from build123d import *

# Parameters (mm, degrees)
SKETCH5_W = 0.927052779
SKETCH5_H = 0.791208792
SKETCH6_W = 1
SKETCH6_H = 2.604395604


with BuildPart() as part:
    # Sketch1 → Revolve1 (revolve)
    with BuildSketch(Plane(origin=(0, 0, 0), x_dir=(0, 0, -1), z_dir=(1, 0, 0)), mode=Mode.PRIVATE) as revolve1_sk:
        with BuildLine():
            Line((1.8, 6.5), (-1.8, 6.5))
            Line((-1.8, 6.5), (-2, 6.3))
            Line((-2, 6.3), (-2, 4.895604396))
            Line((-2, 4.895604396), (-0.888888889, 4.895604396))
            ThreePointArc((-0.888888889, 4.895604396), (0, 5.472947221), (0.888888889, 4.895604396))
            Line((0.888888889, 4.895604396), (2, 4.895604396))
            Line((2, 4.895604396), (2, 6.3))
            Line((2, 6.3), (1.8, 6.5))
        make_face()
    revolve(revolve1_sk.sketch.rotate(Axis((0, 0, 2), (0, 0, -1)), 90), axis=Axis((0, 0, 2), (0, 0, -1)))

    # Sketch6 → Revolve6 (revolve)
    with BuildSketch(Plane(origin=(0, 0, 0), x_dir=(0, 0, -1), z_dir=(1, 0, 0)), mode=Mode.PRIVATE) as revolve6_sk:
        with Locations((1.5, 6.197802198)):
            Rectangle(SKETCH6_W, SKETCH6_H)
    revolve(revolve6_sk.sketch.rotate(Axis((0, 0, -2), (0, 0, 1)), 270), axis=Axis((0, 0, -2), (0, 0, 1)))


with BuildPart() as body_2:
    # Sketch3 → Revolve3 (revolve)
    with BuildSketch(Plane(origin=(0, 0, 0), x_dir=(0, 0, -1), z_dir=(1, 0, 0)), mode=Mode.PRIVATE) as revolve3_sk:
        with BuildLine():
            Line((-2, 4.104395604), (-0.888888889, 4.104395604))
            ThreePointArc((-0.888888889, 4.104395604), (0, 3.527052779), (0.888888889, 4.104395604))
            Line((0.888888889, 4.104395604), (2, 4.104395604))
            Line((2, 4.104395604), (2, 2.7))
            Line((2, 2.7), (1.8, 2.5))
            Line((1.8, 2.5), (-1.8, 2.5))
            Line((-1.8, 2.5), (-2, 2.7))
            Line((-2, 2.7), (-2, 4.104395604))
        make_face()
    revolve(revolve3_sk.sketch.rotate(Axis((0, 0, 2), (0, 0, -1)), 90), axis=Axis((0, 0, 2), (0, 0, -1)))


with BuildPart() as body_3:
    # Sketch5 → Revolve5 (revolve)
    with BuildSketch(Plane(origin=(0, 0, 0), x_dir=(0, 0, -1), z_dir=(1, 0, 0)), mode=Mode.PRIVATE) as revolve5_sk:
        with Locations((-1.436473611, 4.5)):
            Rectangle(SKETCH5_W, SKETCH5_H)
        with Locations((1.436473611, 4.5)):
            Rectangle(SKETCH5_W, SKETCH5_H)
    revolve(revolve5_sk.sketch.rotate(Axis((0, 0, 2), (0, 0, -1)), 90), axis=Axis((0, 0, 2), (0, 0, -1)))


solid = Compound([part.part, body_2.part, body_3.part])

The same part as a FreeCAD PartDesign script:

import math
import FreeCAD as App
import Part
import Sketcher

V = App.Vector

doc = App.newDocument("Part")
body = doc.addObject("PartDesign::Body", "Body")

sketch1 = body.newObject("Sketcher::SketchObject", "Sketch")
sketch1.AttachmentSupport = (doc.getObject("YZ_Plane"), [""])
sketch1.MapMode = "FlatFace"
sketch1.addGeometry(Part.LineSegment(V(6.5, -1.8, 0), V(6.5, 1.8, 0)), False)
sketch1.addGeometry(Part.LineSegment(V(6.5, 1.8, 0), V(6.3, 2, 0)), False)
sketch1.addGeometry(Part.LineSegment(V(6.3, 2, 0), V(4.9, 2, 0)), False)
sketch1.addGeometry(Part.LineSegment(V(4.9, 2, 0), V(4.9, 0.89, 0)), False)
sketch1.addGeometry(Part.ArcOfCircle(Part.Circle(V(4.5, 0, 0), V(0, 0, 1), 0.97), math.radians(-66), math.radians(66)), False)
sketch1.addGeometry(Part.LineSegment(V(4.9, -0.89, 0), V(4.9, -2, 0)), False)
sketch1.addGeometry(Part.LineSegment(V(4.9, -2, 0), V(6.3, -2, 0)), False)
sketch1.addGeometry(Part.LineSegment(V(6.3, -2, 0), V(6.5, -1.8, 0)), False)
sketch1.addConstraint(Sketcher.Constraint("Coincident", 0, 2, 1, 1))
sketch1.addConstraint(Sketcher.Constraint("Coincident", 1, 2, 2, 1))
sketch1.addConstraint(Sketcher.Constraint("Coincident", 2, 2, 3, 1))
sketch1.addConstraint(Sketcher.Constraint("Coincident", 3, 2, 4, 2))
sketch1.addConstraint(Sketcher.Constraint("Coincident", 4, 1, 5, 1))
sketch1.addConstraint(Sketcher.Constraint("Coincident", 5, 2, 6, 1))
sketch1.addConstraint(Sketcher.Constraint("Coincident", 6, 2, 7, 1))
sketch1.addConstraint(Sketcher.Constraint("Coincident", 7, 2, 0, 1))
sketch1.addConstraint(Sketcher.Constraint("Vertical", 0))
sketch1.addConstraint(Sketcher.Constraint("Horizontal", 2))
sketch1.addConstraint(Sketcher.Constraint("Vertical", 3))
sketch1.addConstraint(Sketcher.Constraint("Vertical", 5))
sketch1.addConstraint(Sketcher.Constraint("Horizontal", 6))
sketch1.addConstraint(Sketcher.Constraint("Symmetric", 3, 2, 4, 1, -1))
sketch1.addConstraint(Sketcher.Constraint("Symmetric", 1, 2, 6, 2, -1))
sketch1.addConstraint(Sketcher.Constraint("Perpendicular", 1, 7))
sketch1.addConstraint(Sketcher.Constraint("Equal", 1, 7))
sketch1.addConstraint(Sketcher.Constraint("DistanceY", 0, 1, 0, 2, 3.6))
sketch1.addConstraint(Sketcher.Constraint("DistanceY", -1, 1, 1, 2, 2.0))
sketch1.addConstraint(Sketcher.Constraint("DistanceX", 4, 3, 0, 2, 2.0))
sketch1.addConstraint(Sketcher.Constraint("DistanceX", -1, 1, 4, 3, 4.5))
sketch1.addConstraint(Sketcher.Constraint("Radius", 4, 0.972947))
sketch1.addConstraint(Sketcher.Constraint("DistanceY", 3, 2, 3, 1, 1.111111))
revolution = body.newObject("PartDesign::Revolution", "Revolution")
revolution.Profile = sketch1
revolution.ReferenceAxis = (sketch1, ["V_Axis"])
revolution.Angle = 360

sketch2 = body.newObject("Sketcher::SketchObject", "Sketch001")
sketch2.AttachmentSupport = (doc.getObject("YZ_Plane"), [""])
sketch2.MapMode = "FlatFace"
sketch2.addGeometry(Part.LineSegment(V(7.5, -1, 0), V(4.9, -1, 0)), False)
sketch2.addGeometry(Part.LineSegment(V(4.9, -1, 0), V(4.9, -2, 0)), False)
sketch2.addGeometry(Part.LineSegment(V(4.9, -2, 0), V(7.5, -2, 0)), False)
sketch2.addGeometry(Part.LineSegment(V(7.5, -2, 0), V(7.5, -1, 0)), False)
sketch2.addConstraint(Sketcher.Constraint("Coincident", 0, 2, 1, 1))
sketch2.addConstraint(Sketcher.Constraint("Coincident", 1, 2, 2, 1))
sketch2.addConstraint(Sketcher.Constraint("Coincident", 2, 2, 3, 1))
sketch2.addConstraint(Sketcher.Constraint("Coincident", 3, 2, 0, 1))
sketch2.addConstraint(Sketcher.Constraint("Horizontal", 0))
sketch2.addConstraint(Sketcher.Constraint("Vertical", 1))
sketch2.addConstraint(Sketcher.Constraint("Horizontal", 2))
sketch2.addConstraint(Sketcher.Constraint("Vertical", 3))
sketch2.addConstraint(Sketcher.Constraint("DistanceY", 1, 2, 1, 1, 1.0))
sketch2.addConstraint(Sketcher.Constraint("DistanceY", 0, 2, -1, 1, 1.0))
sketch2.addConstraint(Sketcher.Constraint("DistanceX", -1, 1, 2, 2, 7.5))
sketch2.addConstraint(Sketcher.Constraint("DistanceX", 0, 2, 0, 1, 2.604396))
revolution2 = body.newObject("PartDesign::Revolution", "Revolution001")
revolution2.Profile = sketch2
revolution2.ReferenceAxis = (sketch2, ["V_Axis"])
revolution2.Angle = 360
body2 = doc.addObject("PartDesign::Body", "Body001")

sketch3 = body2.newObject("Sketcher::SketchObject", "Sketch002")
sketch3.AttachmentSupport = (doc.getObject("YZ_Plane001"), [""])
sketch3.MapMode = "FlatFace"
sketch3.addGeometry(Part.LineSegment(V(4.1, 0.89, 0), V(4.1, 2, 0)), False)
sketch3.addGeometry(Part.LineSegment(V(4.1, 2, 0), V(2.7, 2, 0)), False)
sketch3.addGeometry(Part.LineSegment(V(2.7, 2, 0), V(2.5, 1.8, 0)), False)
sketch3.addGeometry(Part.LineSegment(V(2.5, 1.8, 0), V(2.5, -1.8, 0)), False)
sketch3.addGeometry(Part.LineSegment(V(2.5, -1.8, 0), V(2.7, -2, 0)), False)
sketch3.addGeometry(Part.LineSegment(V(2.7, -2, 0), V(4.1, -2, 0)), False)
sketch3.addGeometry(Part.LineSegment(V(4.1, -2, 0), V(4.1, -0.89, 0)), False)
sketch3.addGeometry(Part.ArcOfCircle(Part.Circle(V(4.5, 0, 0), V(0, 0, 1), 0.97), math.radians(114), math.radians(246)), False)
sketch3.addConstraint(Sketcher.Constraint("Coincident", 0, 2, 1, 1))
sketch3.addConstraint(Sketcher.Constraint("Coincident", 1, 2, 2, 1))
sketch3.addConstraint(Sketcher.Constraint("Coincident", 2, 2, 3, 1))
sketch3.addConstraint(Sketcher.Constraint("Coincident", 3, 2, 4, 1))
sketch3.addConstraint(Sketcher.Constraint("Coincident", 4, 2, 5, 1))
sketch3.addConstraint(Sketcher.Constraint("Coincident", 5, 2, 6, 1))
sketch3.addConstraint(Sketcher.Constraint("Coincident", 6, 2, 7, 2))
sketch3.addConstraint(Sketcher.Constraint("Coincident", 7, 1, 0, 1))
sketch3.addConstraint(Sketcher.Constraint("Vertical", 0))
sketch3.addConstraint(Sketcher.Constraint("Horizontal", 1))
sketch3.addConstraint(Sketcher.Constraint("Vertical", 3))
sketch3.addConstraint(Sketcher.Constraint("Horizontal", 5))
sketch3.addConstraint(Sketcher.Constraint("Vertical", 6))
sketch3.addConstraint(Sketcher.Constraint("Symmetric", 1, 2, 4, 2, -1))
sketch3.addConstraint(Sketcher.Constraint("Symmetric", 6, 2, 7, 1, -1))
sketch3.addConstraint(Sketcher.Constraint("Perpendicular", 2, 4))
sketch3.addConstraint(Sketcher.Constraint("Equal", 2, 4))
sketch3.addConstraint(Sketcher.Constraint("DistanceY", 3, 2, 3, 1, 3.6))
sketch3.addConstraint(Sketcher.Constraint("DistanceY", -1, 1, 0, 2, 2.0))
sketch3.addConstraint(Sketcher.Constraint("DistanceX", 2, 2, 7, 3, 2.0))
sketch3.addConstraint(Sketcher.Constraint("DistanceX", -1, 1, 7, 3, 4.5))
sketch3.addConstraint(Sketcher.Constraint("Radius", 7, 0.972947))
sketch3.addConstraint(Sketcher.Constraint("DistanceY", 0, 1, 0, 2, 1.111111))
revolution3 = body2.newObject("PartDesign::Revolution", "Revolution002")
revolution3.Profile = sketch3
revolution3.ReferenceAxis = (sketch3, ["V_Axis"])
revolution3.Angle = 360
body3 = doc.addObject("PartDesign::Body", "Body002")
body3.AllowCompound = True

sketch4 = body3.newObject("Sketcher::SketchObject", "Sketch003")
sketch4.AttachmentSupport = (doc.getObject("YZ_Plane002"), [""])
sketch4.MapMode = "FlatFace"
sketch4.addGeometry(Part.LineSegment(V(4.9, 1.9, 0), V(4.1, 1.9, 0)), False)
sketch4.addGeometry(Part.LineSegment(V(4.1, 1.9, 0), V(4.1, 1, 0)), False)
sketch4.addGeometry(Part.LineSegment(V(4.1, 1, 0), V(4.9, 1, 0)), False)
sketch4.addGeometry(Part.LineSegment(V(4.9, 1, 0), V(4.9, 1.9, 0)), False)
sketch4.addGeometry(Part.LineSegment(V(4.9, -1, 0), V(4.1, -1, 0)), False)
sketch4.addGeometry(Part.LineSegment(V(4.1, -1, 0), V(4.1, -1.9, 0)), False)
sketch4.addGeometry(Part.LineSegment(V(4.1, -1.9, 0), V(4.9, -1.9, 0)), False)
sketch4.addGeometry(Part.LineSegment(V(4.9, -1.9, 0), V(4.9, -1, 0)), False)
sketch4.addConstraint(Sketcher.Constraint("Coincident", 0, 2, 1, 1))
sketch4.addConstraint(Sketcher.Constraint("Coincident", 1, 2, 2, 1))
sketch4.addConstraint(Sketcher.Constraint("Coincident", 2, 2, 3, 1))
sketch4.addConstraint(Sketcher.Constraint("Coincident", 3, 2, 0, 1))
sketch4.addConstraint(Sketcher.Constraint("Coincident", 4, 2, 5, 1))
sketch4.addConstraint(Sketcher.Constraint("Coincident", 5, 2, 6, 1))
sketch4.addConstraint(Sketcher.Constraint("Coincident", 6, 2, 7, 1))
sketch4.addConstraint(Sketcher.Constraint("Coincident", 7, 2, 4, 1))
sketch4.addConstraint(Sketcher.Constraint("Horizontal", 0))
sketch4.addConstraint(Sketcher.Constraint("Vertical", 1))
sketch4.addConstraint(Sketcher.Constraint("Horizontal", 2))
sketch4.addConstraint(Sketcher.Constraint("Vertical", 3))
sketch4.addConstraint(Sketcher.Constraint("Horizontal", 4))
sketch4.addConstraint(Sketcher.Constraint("Vertical", 5))
sketch4.addConstraint(Sketcher.Constraint("Horizontal", 6))
sketch4.addConstraint(Sketcher.Constraint("Vertical", 7))
sketch4.addConstraint(Sketcher.Constraint("Symmetric", 1, 2, 4, 2, -1))
sketch4.addConstraint(Sketcher.Constraint("Symmetric", 3, 2, 6, 2, -1))
sketch4.addConstraint(Sketcher.Constraint("DistanceY", -1, 1, 0, 2, 1.9))
sketch4.addConstraint(Sketcher.Constraint("DistanceX", 0, 2, 0, 1, 0.791209))
sketch4.addConstraint(Sketcher.Constraint("DistanceY", 1, 2, 1, 1, 0.927053))
sketch4.addConstraint(Sketcher.Constraint("DistanceX", -1, 1, 0, 2, 4.104396))
revolution4 = body3.newObject("PartDesign::Revolution", "Revolution003")
revolution4.Profile = sketch4
revolution4.ReferenceAxis = (sketch4, ["V_Axis"])
revolution4.Angle = 360

doc.recompute()
